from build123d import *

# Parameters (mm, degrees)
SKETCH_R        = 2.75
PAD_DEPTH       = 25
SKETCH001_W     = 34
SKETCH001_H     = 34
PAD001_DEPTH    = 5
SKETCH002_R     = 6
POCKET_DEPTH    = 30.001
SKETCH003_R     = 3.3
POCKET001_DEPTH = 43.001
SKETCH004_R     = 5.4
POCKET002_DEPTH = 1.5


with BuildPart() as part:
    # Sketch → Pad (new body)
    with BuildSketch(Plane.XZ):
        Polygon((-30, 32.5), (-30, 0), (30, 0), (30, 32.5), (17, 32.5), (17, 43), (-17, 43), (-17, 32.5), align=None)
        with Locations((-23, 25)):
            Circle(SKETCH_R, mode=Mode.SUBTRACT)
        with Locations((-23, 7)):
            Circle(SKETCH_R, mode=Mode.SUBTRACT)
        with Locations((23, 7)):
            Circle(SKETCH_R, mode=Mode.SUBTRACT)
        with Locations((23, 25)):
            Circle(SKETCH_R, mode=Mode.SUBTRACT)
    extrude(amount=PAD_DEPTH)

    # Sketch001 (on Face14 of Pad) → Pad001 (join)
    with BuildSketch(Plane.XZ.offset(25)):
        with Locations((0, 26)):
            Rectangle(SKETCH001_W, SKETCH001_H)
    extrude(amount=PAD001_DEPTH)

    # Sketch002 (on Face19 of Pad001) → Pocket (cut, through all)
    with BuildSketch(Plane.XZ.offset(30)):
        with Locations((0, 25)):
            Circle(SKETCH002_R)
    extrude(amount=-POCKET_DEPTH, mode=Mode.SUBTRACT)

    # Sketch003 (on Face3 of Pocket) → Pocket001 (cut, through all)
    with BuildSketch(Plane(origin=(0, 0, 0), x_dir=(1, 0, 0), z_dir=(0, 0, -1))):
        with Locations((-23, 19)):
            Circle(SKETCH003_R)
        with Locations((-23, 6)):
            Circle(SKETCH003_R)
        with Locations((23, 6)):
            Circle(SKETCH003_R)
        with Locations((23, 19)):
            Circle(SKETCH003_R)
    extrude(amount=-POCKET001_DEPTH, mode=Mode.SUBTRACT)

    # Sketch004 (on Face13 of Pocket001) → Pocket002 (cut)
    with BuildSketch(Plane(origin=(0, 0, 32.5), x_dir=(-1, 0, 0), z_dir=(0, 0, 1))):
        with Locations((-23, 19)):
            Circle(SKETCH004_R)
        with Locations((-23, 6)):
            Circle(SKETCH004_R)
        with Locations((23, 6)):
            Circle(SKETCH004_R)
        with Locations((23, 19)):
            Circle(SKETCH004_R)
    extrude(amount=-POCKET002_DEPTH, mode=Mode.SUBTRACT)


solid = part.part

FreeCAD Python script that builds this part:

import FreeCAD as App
import Part
import Sketcher
Q = App.Units.Quantity


def add_polygon(sketch, points):
    """Adds a closed chain of lines whose ends are joined by coincident constraints."""
    first, n = sketch.GeometryCount, len(points)
    for a, b in zip(points, points[1:] + points[:1]):
        sketch.addGeometry(Part.LineSegment(App.Vector(*a, 0), App.Vector(*b, 0)), False)
    for i in range(n):
        sketch.addConstraint(Sketcher.Constraint("Coincident", first + i, 2, first + (i + 1) % n, 1))

doc = App.newDocument("Part")
params = doc.addObject("Spreadsheet::Sheet", "Params")
for row, (alias, value) in enumerate([
    ("sketch1_diameter", "5.5 mm"),
    ("sketch1_width", "60 mm"),
    ("sketch1_width2", "13 mm"),
    ("sketch1_height", "32.5 mm"),
    ("sketch1_height2", "10.5 mm"),
    ("pad1_length", "25 mm"),
    ("sketch2_width", "34 mm"),
    ("pad2_length", "5 mm"),
    ("sketch3_diameter", "12 mm"),
    ("sketch4_diameter", "6.6 mm"),
    ("sketch5_diameter", "10.8 mm"),
    ("pocket3_length", "1.5 mm"),
], start=1):
    params.set(f"A{row}", alias)
    params.set(f"B{row}", "=" + value)
    params.setAlias(f"B{row}", alias)

body = doc.addObject("PartDesign::Body", "Body")

# Sketch on XZ plane
sketch1 = body.newObject("Sketcher::SketchObject", "Sketch")
sketch1.AttachmentSupport = (doc.getObject("XZ_Plane"), [""])
sketch1.MapMode = "FlatFace"
add_polygon(sketch1, [(-30, 32.5), (-30, 0), (30, 0), (30, 32.5), (17, 32.5), (17, 43), (-17, 43), (-17, 32.5)])  # lines 0-7
sketch1.addGeometry(Part.Circle(App.Vector(-23, 7, 0), App.Vector(0, 0, 1), 2.8), False)  # 8
sketch1.addGeometry(Part.Circle(App.Vector(23, 7, 0), App.Vector(0, 0, 1), 2.8), False)  # 9
sketch1.addGeometry(Part.Circle(App.Vector(-23, 25, 0), App.Vector(0, 0, 1), 2.8), False)  # 10
sketch1.addGeometry(Part.Circle(App.Vector(23, 25, 0), App.Vector(0, 0, 1), 2.8), False)  # 11
sketch1.addConstraint([
    Sketcher.Constraint("Vertical", 0),
    Sketcher.Constraint("Horizontal", 1),
    Sketcher.Constraint("Vertical", 2),
    Sketcher.Constraint("Horizontal", 3),
    Sketcher.Constraint("Vertical", 4),
    Sketcher.Constraint("Horizontal", 5),
    Sketcher.Constraint("Vertical", 6),
    Sketcher.Constraint("Horizontal", 7),
    Sketcher.Constraint("Equal", 8, 9),
    Sketcher.Constraint("Equal", 9, 10),
    Sketcher.Constraint("Equal", 10, 11),
    Sketcher.Constraint("Symmetric", 0, 2, 1, 2, -1, 1),
    Sketcher.Constraint("Symmetric", 8, 3, 9, 3, -2),
    Sketcher.Constraint("Symmetric", 10, 3, 11, 3, -2),
    Sketcher.Constraint("Symmetric", 3, 2, 6, 2, -2),
    Sketcher.Constraint("Vertical", 8, 3, 10, 3),
    Sketcher.Constraint("Diameter", 8, Q("5.5 mm")),
    Sketcher.Constraint("DistanceX", 1, 1, 1, 2, Q("60 mm")),
    Sketcher.Constraint("DistanceX", 3, 2, 3, 1, Q("13 mm")),
    Sketcher.Constraint("DistanceY", 0, 2, 0, 1, Q("32.5 mm")),
    Sketcher.Constraint("DistanceY", 4, 1, 4, 2, Q("10.5 mm")),
    Sketcher.Constraint("DistanceX", 8, 3, -1, 1, Q("23 mm")),
    Sketcher.Constraint("DistanceY", -1, 1, 8, 3, Q("7 mm")),
    Sketcher.Constraint("DistanceY", -1, 1, 10, 3, Q("25 mm")),
])
sketch1.setExpression("Constraints[24]", "Params.sketch1_diameter")
sketch1.setExpression("Constraints[25]", "Params.sketch1_width")
sketch1.setExpression("Constraints[26]", "Params.sketch1_width2")
sketch1.setExpression("Constraints[27]", "Params.sketch1_height")
sketch1.setExpression("Constraints[28]", "Params.sketch1_height2")
pad1 = body.newObject("PartDesign::Pad", "Pad")
pad1.Profile = sketch1
pad1.setExpression("Length", "Params.pad1_length")

# Sketch on XZ plane
sketch2 = body.newObject("Sketcher::SketchObject", "Sketch001")
sketch2.AttachmentSupport = (doc.getObject("XZ_Plane"), [""])
sketch2.MapMode = "FlatFace"
sketch2.AttachmentOffset = App.Placement(App.Vector(0, 0, 25), App.Rotation())
add_polygon(sketch2, [(-17, 43), (-17, 9), (17, 9), (17, 43)])  # lines 0-3
sketch2.addConstraint([
    Sketcher.Constraint("Vertical", 0),
    Sketcher.Constraint("Horizontal", 1),
    Sketcher.Constraint("Vertical", 2),
    Sketcher.Constraint("Horizontal", 3),
    Sketcher.Constraint("Equal", 3, 0),
    Sketcher.Constraint("DistanceX", 1, 1, 1, 2, Q("34 mm")),
    Sketcher.Constraint("DistanceX", 0, 2, -1, 1, Q("17 mm")),
    Sketcher.Constraint("DistanceY", -1, 1, 0, 2, Q("9 mm")),
])
sketch2.setExpression("Constraints[9]", "Params.sketch2_width")
pad2 = body.newObject("PartDesign::Pad", "Pad001")
pad2.Profile = sketch2
pad2.setExpression("Length", "Params.pad2_length")

# Sketch on XZ plane
sketch3 = body.newObject("Sketcher::SketchObject", "Sketch002")
sketch3.AttachmentSupport = (doc.getObject("XZ_Plane"), [""])
sketch3.MapMode = "FlatFace"
sketch3.AttachmentOffset = App.Placement(App.Vector(0, 0, 30), App.Rotation())
sketch3.addGeometry(Part.Circle(App.Vector(0, 25, 0), App.Vector(0, 0, 1), 6), False)
sketch3.addConstraint([
    Sketcher.Constraint("PointOnObject", 0, 3, -2),
    Sketcher.Constraint("Diameter", 0, Q("12 mm")),
    Sketcher.Constraint("DistanceY", -1, 1, 0, 3, Q("25 mm")),
])
sketch3.setExpression("Constraints[1]", "Params.sketch3_diameter")
pocket1 = body.newObject("PartDesign::Pocket", "Pocket")
pocket1.Profile = sketch3
pocket1.Type = "ThroughAll"

# Sketch on XY plane
sketch4 = body.newObject("Sketcher::SketchObject", "Sketch003")
sketch4.AttachmentSupport = (doc.getObject("XY_Plane"), [""])
sketch4.MapMode = "FlatFace"
sketch4.addGeometry([
    Part.Circle(App.Vector(-23, -19, 0), App.Vector(0, 0, 1), 3.3),
    Part.Circle(App.Vector(-23, -6, 0), App.Vector(0, 0, 1), 3.3),
    Part.Circle(App.Vector(23, -6, 0), App.Vector(0, 0, 1), 3.3),
    Part.Circle(App.Vector(23, -19, 0), App.Vector(0, 0, 1), 3.3),
], False)
sketch4.addConstraint([
    Sketcher.Constraint("Equal", 0, 1),
    Sketcher.Constraint("Equal", 1, 2),
    Sketcher.Constraint("Equal", 2, 3),
    Sketcher.Constraint("Symmetric", 1, 3, 2, 3, -2),
    Sketcher.Constraint("Symmetric", 0, 3, 3, 3, -2),
    Sketcher.Constraint("Vertical", 0, 3, 1, 3),
    Sketcher.Constraint("Diameter", 0, Q("6.6 mm")),
    Sketcher.Constraint("DistanceX", 0, 3, -1, 1, Q("23 mm")),
    Sketcher.Constraint("DistanceY", 0, 3, -1, 1, Q("19 mm")),
    Sketcher.Constraint("DistanceY", 1, 3, -1, 1, Q("6 mm")),
])
sketch4.setExpression("Constraints[6]", "Params.sketch4_diameter")
pocket2 = body.newObject("PartDesign::Pocket", "Pocket001")
pocket2.Profile = sketch4
pocket2.Type = "ThroughAll"
pocket2.Reversed = True

# Sketch on XY plane
sketch5 = body.newObject("Sketcher::SketchObject", "Sketch004")
sketch5.AttachmentSupport = (doc.getObject("XY_Plane"), [""])
sketch5.MapMode = "FlatFace"
sketch5.AttachmentOffset = App.Placement(App.Vector(0, 0, 32.5), App.Rotation())
sketch5.addGeometry([
    Part.Circle(App.Vector(23, -19, 0), App.Vector(0, 0, 1), 5),
    Part.Circle(App.Vector(23, -6, 0), App.Vector(0, 0, 1), 5),
    Part.Circle(App.Vector(-23, -6, 0), App.Vector(0, 0, 1), 5),
    Part.Circle(App.Vector(-23, -19, 0), App.Vector(0, 0, 1), 5),
], False)
sketch5.addConstraint([
    Sketcher.Constraint("Equal", 0, 1),
    Sketcher.Constraint("Equal", 1, 2),
    Sketcher.Constraint("Equal", 2, 3),
    Sketcher.Constraint("Symmetric", 1, 3, 2, 3, -2),
    Sketcher.Constraint("Symmetric", 0, 3, 3, 3, -2),
    Sketcher.Constraint("Vertical", 0, 3, 1, 3),
    Sketcher.Constraint("Diameter", 0, Q("10.8 mm")),
    Sketcher.Constraint("DistanceX", -1, 1, 0, 3, Q("23 mm")),
    Sketcher.Constraint("DistanceY", 0, 3, -1, 1, Q("19 mm")),
    Sketcher.Constraint("DistanceY", 1, 3, -1, 1, Q("6 mm")),
])
sketch5.setExpression("Constraints[6]", "Params.sketch5_diameter")
pocket3 = body.newObject("PartDesign::Pocket", "Pocket002")
pocket3.Profile = sketch5
pocket3.setExpression("Length", "Params.pocket3_length")

doc.recompute()
